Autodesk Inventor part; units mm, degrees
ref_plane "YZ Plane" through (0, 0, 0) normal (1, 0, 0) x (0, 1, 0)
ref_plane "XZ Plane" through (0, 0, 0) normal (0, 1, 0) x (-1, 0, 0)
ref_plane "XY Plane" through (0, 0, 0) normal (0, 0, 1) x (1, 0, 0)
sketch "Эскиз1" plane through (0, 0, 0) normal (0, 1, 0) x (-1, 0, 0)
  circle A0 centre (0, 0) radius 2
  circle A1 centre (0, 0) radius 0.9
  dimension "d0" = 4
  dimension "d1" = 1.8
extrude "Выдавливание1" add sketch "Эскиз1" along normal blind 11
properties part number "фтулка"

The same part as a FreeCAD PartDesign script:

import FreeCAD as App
import Part
import Sketcher
from FreeCAD import Vector

doc = App.newDocument("Part")
body = doc.addObject("PartDesign::Body", "Body")

# Sketch on XZ plane
sketch1 = body.newObject("Sketcher::SketchObject", "Sketch")
sketch1.AttachmentSupport = (doc.getObject("XZ_Plane"), [""])
sketch1.MapMode = "FlatFace"
sketch1.addGeometry(Part.Circle(Vector(0, 0, 0), Vector(0, 0, 1), 2), False)
sketch1.addGeometry(Part.Circle(Vector(0, 0, 0), Vector(0, 0, 1), 0.9), False)
sketch1.addConstraint(Sketcher.Constraint("Coincident", 0, 3, -1, 1))
sketch1.addConstraint(Sketcher.Constraint("Coincident", 1, 3, -1, 1))
sketch1.addConstraint(Sketcher.Constraint("Diameter", 0, 4.0))
sketch1.addConstraint(Sketcher.Constraint("Diameter", 1, 1.8))
pad1 = body.newObject("PartDesign::Pad", "Pad")
pad1.Profile = sketch1
pad1.Length = 11
pad1.Reversed = True

doc.recompute()
